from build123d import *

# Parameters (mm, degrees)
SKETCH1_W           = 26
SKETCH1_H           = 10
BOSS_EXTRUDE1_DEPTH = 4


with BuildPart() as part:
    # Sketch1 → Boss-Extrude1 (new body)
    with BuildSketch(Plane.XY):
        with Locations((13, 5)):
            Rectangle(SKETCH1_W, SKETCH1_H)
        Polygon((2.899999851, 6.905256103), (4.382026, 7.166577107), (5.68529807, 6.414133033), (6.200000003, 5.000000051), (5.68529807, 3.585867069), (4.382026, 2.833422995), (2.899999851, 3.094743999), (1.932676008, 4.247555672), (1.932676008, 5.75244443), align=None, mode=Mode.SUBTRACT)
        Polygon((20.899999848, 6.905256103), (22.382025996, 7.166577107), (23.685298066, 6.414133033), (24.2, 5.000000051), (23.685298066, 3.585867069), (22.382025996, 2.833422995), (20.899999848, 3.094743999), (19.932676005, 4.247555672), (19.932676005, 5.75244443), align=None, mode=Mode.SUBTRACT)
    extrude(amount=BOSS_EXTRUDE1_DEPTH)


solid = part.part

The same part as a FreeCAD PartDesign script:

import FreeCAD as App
import Part
import Sketcher
from FreeCAD import Vector
Q = App.Units.Quantity

doc = App.newDocument("Part")
params = doc.addObject("Spreadsheet::Sheet", "Params")
for row, (alias, value) in enumerate([
    ("sketch1_width", "26 mm"),
    ("sketch1_height", "10 mm"),
    ("pad1_length", "4 mm"),
], start=1):
    params.set(f"A{row}", alias)
    params.set(f"B{row}", "=" + value)
    params.setAlias(f"B{row}", alias)

body = doc.addObject("PartDesign::Body", "Body")

sketch1 = body.newObject("Sketcher::SketchObject", "Sketch")
sketch1.AttachmentSupport = (doc.getObject("XY_Plane"), [""])
sketch1.MapMode = "FlatFace"
sketch1.addGeometry(Part.LineSegment(Vector(0, 10, 0), Vector(0, 0, 0)), False)
sketch1.addGeometry(Part.LineSegment(Vector(0, 0, 0), Vector(26, 0, 0)), False)
sketch1.addGeometry(Part.LineSegment(Vector(26, 0, 0), Vector(26, 10, 0)), False)
sketch1.addGeometry(Part.LineSegment(Vector(26, 10, 0), Vector(0, 10, 0)), False)
sketch1.addGeometry(Part.LineSegment(Vector(1.9, 5.8, 0), Vector(2.9, 6.9, 0)), False)
sketch1.addGeometry(Part.LineSegment(Vector(2.9, 6.9, 0), Vector(4.4, 7.2, 0)), False)
sketch1.addGeometry(Part.LineSegment(Vector(4.4, 7.2, 0), Vector(5.7, 6.4, 0)), False)
sketch1.addGeometry(Part.LineSegment(Vector(5.7, 6.4, 0), Vector(6.2, 5, 0)), False)
sketch1.addGeometry(Part.LineSegment(Vector(6.2, 5, 0), Vector(5.7, 3.6, 0)), False)
sketch1.addGeometry(Part.LineSegment(Vector(5.7, 3.6, 0), Vector(4.4, 2.8, 0)), False)
sketch1.addGeometry(Part.LineSegment(Vector(4.4, 2.8, 0), Vector(2.9, 3.1, 0)), False)
sketch1.addGeometry(Part.LineSegment(Vector(2.9, 3.1, 0), Vector(1.9, 4.2, 0)), False)
sketch1.addGeometry(Part.LineSegment(Vector(1.9, 4.2, 0), Vector(1.9, 5.8, 0)), False)
sketch1.addGeometry(Part.LineSegment(Vector(19.9, 5.8, 0), Vector(20.9, 6.9, 0)), False)
sketch1.addGeometry(Part.LineSegment(Vector(20.9, 6.9, 0), Vector(22.4, 7.2, 0)), False)
sketch1.addGeometry(Part.LineSegment(Vector(22.4, 7.2, 0), Vector(23.7, 6.4, 0)), False)
sketch1.addGeometry(Part.LineSegment(Vector(23.7, 6.4, 0), Vector(24.2, 5, 0)), False)
sketch1.addGeometry(Part.LineSegment(Vector(24.2, 5, 0), Vector(23.7, 3.6, 0)), False)
sketch1.addGeometry(Part.LineSegment(Vector(23.7, 3.6, 0), Vector(22.4, 2.8, 0)), False)
sketch1.addGeometry(Part.LineSegment(Vector(22.4, 2.8, 0), Vector(20.9, 3.1, 0)), False)
sketch1.addGeometry(Part.LineSegment(Vector(20.9, 3.1, 0), Vector(19.9, 4.2, 0)), False)
sketch1.addGeometry(Part.LineSegment(Vector(19.9, 4.2, 0), Vector(19.9, 5.8, 0)), False)
sketch1.addConstraint(Sketcher.Constraint("Coincident", 0, 2, 1, 1))
sketch1.addConstraint(Sketcher.Constraint("Coincident", 1, 2, 2, 1))
sketch1.addConstraint(Sketcher.Constraint("Coincident", 2, 2, 3, 1))
sketch1.addConstraint(Sketcher.Constraint("Coincident", 3, 2, 0, 1))
sketch1.addConstraint(Sketcher.Constraint("Coincident", 4, 2, 5, 1))
sketch1.addConstraint(Sketcher.Constraint("Coincident", 5, 2, 6, 1))
sketch1.addConstraint(Sketcher.Constraint("Coincident", 6, 2, 7, 1))
sketch1.addConstraint(Sketcher.Constraint("Coincident", 7, 2, 8, 1))
sketch1.addConstraint(Sketcher.Constraint("Coincident", 8, 2, 9, 1))
sketch1.addConstraint(Sketcher.Constraint("Coincident", 9, 2, 10, 1))
sketch1.addConstraint(Sketcher.Constraint("Coincident", 10, 2, 11, 1))
sketch1.addConstraint(Sketcher.Constraint("Coincident", 11, 2, 12, 1))
sketch1.addConstraint(Sketcher.Constraint("Coincident", 12, 2, 4, 1))
sketch1.addConstraint(Sketcher.Constraint("Coincident", 13, 2, 14, 1))
sketch1.addConstraint(Sketcher.Constraint("Coincident", 14, 2, 15, 1))
sketch1.addConstraint(Sketcher.Constraint("Coincident", 15, 2, 16, 1))
sketch1.addConstraint(Sketcher.Constraint("Coincident", 16, 2, 17, 1))
sketch1.addConstraint(Sketcher.Constraint("Coincident", 17, 2, 18, 1))
sketch1.addConstraint(Sketcher.Constraint("Coincident", 18, 2, 19, 1))
sketch1.addConstraint(Sketcher.Constraint("Coincident", 19, 2, 20, 1))
sketch1.addConstraint(Sketcher.Constraint("Coincident", 20, 2, 21, 1))
sketch1.addConstraint(Sketcher.Constraint("Coincident", 21, 2, 13, 1))
sketch1.addConstraint(Sketcher.Constraint("Vertical", 0))
sketch1.addConstraint(Sketcher.Constraint("Horizontal", 1))
sketch1.addConstraint(Sketcher.Constraint("Vertical", 2))
sketch1.addConstraint(Sketcher.Constraint("Horizontal", 3))
sketch1.addConstraint(Sketcher.Constraint("Vertical", 12))
sketch1.addConstraint(Sketcher.Constraint("Vertical", 21))
sketch1.addConstraint(Sketcher.Constraint("Coincident", 0, 2, -1, 1))
sketch1.addConstraint(Sketcher.Constraint("Parallel", 4, 13))
sketch1.addConstraint(Sketcher.Constraint("Parallel", 5, 14))
sketch1.addConstraint(Sketcher.Constraint("Parallel", 6, 15))
sketch1.addConstraint(Sketcher.Constraint("Parallel", 7, 16))
sketch1.addConstraint(Sketcher.Constraint("Parallel", 8, 17))
sketch1.addConstraint(Sketcher.Constraint("Parallel", 9, 18))
sketch1.addConstraint(Sketcher.Constraint("Parallel", 10, 19))
sketch1.addConstraint(Sketcher.Constraint("Parallel", 11, 20))
sketch1.addConstraint(Sketcher.Constraint("Horizontal", 4, 2, 13, 2))
sketch1.addConstraint(Sketcher.Constraint("Horizontal", 5, 2, 14, 2))
sketch1.addConstraint(Sketcher.Constraint("Horizontal", 6, 2, 15, 2))
sketch1.addConstraint(Sketcher.Constraint("Horizontal", 7, 2, 16, 2))
sketch1.addConstraint(Sketcher.Constraint("Horizontal", 8, 2, 17, 2))
sketch1.addConstraint(Sketcher.Constraint("Horizontal", 9, 2, 18, 2))
sketch1.addConstraint(Sketcher.Constraint("Horizontal", 10, 2, 19, 2))
sketch1.addConstraint(Sketcher.Constraint("Horizontal", 11, 2, 20, 2))
sketch1.addConstraint(Sketcher.Constraint("Vertical", 6, 2, 8, 2))
sketch1.addConstraint(Sketcher.Constraint("Vertical", 5, 2, 9, 2))
sketch1.addConstraint(Sketcher.Constraint("Vertical", 4, 2, 10, 2))
sketch1.addConstraint(Sketcher.Constraint("Equal", 4, 5))
sketch1.addConstraint(Sketcher.Constraint("Equal", 5, 6))
sketch1.addConstraint(Sketcher.Constraint("Equal", 6, 7))
sketch1.addConstraint(Sketcher.Constraint("Equal", 7, 8))
sketch1.addConstraint(Sketcher.Constraint("Equal", 8, 9))
sketch1.addConstraint(Sketcher.Constraint("Equal", 9, 10))
sketch1.addConstraint(Sketcher.Constraint("Equal", 10, 11))
sketch1.addConstraint(Sketcher.Constraint("DistanceX", 1, 1, 1, 2, Q("26 mm")))
sketch1.addConstraint(Sketcher.Constraint("DistanceY", 0, 2, 0, 1, Q("10 mm")))
sketch1.addConstraint(Sketcher.Constraint("Angle", 4, Q("50 deg")))
sketch1.addConstraint(Sketcher.Constraint("Angle", 5, Q("9.999993 deg")))
sketch1.addConstraint(Sketcher.Constraint("Angle", 6, Q("-29.999987 deg")))
sketch1.addConstraint(Sketcher.Constraint("Angle", 7, Q("-70.000014 deg")))
sketch1.addConstraint(Sketcher.Constraint("DistanceY", -1, 1, 7, 2, Q("5 mm")))
sketch1.addConstraint(Sketcher.Constraint("DistanceX", -1, 1, 4, 2, Q("2.9 mm")))
sketch1.addConstraint(Sketcher.Constraint("DistanceX", -1, 1, 7, 2, Q("6.2 mm")))
sketch1.addConstraint(Sketcher.Constraint("DistanceX", -1, 1, 13, 2, Q("20.9 mm")))
sketch1.setExpression("Constraints[55]", "Params.sketch1_width")
sketch1.setExpression("Constraints[56]", "Params.sketch1_height")
pad1 = body.newObject("PartDesign::Pad", "Pad")
pad1.Profile = sketch1
pad1.setExpression("Length", "Params.pad1_length")

doc.recompute()
